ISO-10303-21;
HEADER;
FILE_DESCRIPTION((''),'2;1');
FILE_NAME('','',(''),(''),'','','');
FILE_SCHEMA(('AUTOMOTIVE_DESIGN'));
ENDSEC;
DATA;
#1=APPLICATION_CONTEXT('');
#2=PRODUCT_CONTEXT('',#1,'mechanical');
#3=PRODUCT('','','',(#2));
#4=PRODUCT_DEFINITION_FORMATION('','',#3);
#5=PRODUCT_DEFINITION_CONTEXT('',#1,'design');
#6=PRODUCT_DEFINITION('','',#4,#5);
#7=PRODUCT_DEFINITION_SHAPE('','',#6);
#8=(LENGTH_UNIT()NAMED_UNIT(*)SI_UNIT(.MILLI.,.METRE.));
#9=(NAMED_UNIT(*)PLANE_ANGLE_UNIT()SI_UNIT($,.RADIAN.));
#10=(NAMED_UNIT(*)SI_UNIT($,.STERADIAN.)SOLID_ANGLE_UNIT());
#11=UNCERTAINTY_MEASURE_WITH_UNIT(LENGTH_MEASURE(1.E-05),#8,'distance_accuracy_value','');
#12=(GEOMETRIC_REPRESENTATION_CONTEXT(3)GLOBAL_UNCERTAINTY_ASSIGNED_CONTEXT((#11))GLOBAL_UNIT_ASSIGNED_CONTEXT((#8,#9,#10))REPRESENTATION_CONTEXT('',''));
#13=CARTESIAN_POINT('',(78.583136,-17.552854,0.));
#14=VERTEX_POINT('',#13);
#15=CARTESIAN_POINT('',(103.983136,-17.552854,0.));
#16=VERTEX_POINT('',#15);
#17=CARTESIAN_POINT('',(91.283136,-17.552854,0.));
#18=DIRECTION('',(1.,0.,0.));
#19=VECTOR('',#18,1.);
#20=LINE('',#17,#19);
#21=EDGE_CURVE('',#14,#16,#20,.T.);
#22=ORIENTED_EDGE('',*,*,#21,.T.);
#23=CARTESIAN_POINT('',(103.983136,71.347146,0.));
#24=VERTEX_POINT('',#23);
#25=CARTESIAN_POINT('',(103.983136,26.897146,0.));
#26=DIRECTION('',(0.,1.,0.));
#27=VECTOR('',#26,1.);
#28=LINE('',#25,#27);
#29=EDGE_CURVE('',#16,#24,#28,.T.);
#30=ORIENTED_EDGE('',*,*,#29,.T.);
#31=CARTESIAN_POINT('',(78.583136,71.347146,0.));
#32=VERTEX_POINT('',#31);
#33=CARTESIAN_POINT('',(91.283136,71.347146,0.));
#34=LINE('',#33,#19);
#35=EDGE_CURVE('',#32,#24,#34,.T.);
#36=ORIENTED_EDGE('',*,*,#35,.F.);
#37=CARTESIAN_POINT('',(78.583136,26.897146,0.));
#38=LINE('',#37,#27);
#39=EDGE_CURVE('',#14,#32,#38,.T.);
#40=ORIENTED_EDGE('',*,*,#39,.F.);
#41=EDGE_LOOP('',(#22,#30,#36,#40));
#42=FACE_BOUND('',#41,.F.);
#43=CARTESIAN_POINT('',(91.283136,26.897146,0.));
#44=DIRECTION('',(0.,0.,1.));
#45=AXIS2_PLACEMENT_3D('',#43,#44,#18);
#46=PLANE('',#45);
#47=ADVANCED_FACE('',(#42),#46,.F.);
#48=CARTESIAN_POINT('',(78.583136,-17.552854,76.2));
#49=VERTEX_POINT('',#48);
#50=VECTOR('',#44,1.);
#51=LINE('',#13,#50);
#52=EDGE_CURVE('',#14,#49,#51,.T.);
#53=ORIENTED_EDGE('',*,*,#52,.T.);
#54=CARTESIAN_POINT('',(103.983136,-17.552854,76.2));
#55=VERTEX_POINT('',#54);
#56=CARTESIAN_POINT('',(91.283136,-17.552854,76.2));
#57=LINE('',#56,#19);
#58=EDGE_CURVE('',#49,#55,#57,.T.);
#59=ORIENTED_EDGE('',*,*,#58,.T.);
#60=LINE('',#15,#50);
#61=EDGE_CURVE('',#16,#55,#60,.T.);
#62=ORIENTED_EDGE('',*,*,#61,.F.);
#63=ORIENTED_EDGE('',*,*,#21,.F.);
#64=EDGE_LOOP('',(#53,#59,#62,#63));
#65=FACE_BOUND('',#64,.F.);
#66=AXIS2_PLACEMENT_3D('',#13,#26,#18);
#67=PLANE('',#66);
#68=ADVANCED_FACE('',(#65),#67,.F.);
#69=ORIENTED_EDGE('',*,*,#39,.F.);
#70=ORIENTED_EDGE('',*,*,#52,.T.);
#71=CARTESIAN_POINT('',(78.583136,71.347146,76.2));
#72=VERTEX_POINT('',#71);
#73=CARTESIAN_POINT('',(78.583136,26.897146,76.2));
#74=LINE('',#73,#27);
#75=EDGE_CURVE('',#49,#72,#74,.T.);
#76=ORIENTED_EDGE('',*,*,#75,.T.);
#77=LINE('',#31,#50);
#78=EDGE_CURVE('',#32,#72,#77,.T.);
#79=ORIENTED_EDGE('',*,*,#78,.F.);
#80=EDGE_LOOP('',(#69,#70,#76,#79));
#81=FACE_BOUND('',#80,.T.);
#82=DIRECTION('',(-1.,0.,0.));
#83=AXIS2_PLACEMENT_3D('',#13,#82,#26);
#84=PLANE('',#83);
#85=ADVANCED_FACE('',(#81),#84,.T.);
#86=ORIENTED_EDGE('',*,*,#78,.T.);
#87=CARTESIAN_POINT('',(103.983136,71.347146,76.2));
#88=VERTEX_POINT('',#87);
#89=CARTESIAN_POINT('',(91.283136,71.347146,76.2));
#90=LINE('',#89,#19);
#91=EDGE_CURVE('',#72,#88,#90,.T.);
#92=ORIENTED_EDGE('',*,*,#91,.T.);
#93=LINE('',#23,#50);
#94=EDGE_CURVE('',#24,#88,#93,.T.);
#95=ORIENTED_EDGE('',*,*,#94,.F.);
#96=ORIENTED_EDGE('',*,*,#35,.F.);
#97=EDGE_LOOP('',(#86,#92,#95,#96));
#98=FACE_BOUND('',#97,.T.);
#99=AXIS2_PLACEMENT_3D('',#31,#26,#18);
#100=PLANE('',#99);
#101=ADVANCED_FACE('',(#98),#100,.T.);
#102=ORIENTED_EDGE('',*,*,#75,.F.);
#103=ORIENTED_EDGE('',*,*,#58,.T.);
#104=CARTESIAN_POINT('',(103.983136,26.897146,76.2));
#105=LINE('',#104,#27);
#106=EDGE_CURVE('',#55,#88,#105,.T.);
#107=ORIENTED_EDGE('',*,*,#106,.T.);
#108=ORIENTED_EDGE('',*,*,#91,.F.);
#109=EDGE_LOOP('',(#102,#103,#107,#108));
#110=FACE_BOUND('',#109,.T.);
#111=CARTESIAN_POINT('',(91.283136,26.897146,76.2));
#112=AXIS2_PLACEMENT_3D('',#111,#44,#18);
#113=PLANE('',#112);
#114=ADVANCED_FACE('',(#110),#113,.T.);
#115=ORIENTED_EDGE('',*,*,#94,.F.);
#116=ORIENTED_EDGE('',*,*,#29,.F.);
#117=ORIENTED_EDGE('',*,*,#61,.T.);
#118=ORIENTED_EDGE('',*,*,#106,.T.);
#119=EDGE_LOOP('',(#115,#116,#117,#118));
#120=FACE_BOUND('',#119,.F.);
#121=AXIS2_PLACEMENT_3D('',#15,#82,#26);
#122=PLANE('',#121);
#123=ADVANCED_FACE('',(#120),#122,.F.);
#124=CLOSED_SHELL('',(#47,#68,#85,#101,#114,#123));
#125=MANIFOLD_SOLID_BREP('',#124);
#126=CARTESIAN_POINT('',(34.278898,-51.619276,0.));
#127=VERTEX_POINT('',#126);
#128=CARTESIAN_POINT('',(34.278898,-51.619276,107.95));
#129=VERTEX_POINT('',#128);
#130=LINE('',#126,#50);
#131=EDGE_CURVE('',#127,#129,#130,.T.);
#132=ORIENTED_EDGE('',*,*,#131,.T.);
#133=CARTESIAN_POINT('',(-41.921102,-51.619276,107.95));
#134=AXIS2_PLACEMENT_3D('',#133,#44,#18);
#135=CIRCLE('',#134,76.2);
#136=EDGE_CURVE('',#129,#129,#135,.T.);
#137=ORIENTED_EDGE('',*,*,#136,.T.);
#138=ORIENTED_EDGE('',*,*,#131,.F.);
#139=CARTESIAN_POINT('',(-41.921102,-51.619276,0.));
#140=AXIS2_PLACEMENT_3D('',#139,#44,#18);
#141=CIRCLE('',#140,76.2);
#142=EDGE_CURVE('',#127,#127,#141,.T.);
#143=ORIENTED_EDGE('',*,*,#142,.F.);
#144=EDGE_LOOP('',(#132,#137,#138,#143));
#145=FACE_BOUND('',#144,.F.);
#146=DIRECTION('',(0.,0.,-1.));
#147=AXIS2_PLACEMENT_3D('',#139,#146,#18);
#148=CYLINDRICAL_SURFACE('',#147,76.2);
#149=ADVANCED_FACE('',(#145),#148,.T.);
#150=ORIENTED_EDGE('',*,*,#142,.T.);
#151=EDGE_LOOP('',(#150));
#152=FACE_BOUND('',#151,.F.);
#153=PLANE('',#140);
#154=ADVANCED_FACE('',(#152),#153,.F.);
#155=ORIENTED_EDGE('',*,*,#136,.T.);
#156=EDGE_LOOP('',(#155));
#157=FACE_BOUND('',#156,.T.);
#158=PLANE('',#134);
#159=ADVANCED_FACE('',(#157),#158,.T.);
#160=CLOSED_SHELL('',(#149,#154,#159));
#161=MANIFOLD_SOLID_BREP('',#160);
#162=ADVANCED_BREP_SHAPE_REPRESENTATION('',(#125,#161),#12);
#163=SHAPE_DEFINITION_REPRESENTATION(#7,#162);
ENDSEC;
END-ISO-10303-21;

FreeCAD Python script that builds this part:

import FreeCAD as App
import Part
import Sketcher
Q = App.Units.Quantity

doc = App.newDocument("Part")
body = doc.addObject("PartDesign::Body", "Body")

# Sketch on XY plane
sketch1 = doc.addObject("Sketcher::SketchObject", "Sketch")
body.addObject(sketch1)
sketch1.AttachmentSupport = (doc.XY_Plane, [""])
sketch1.MapMode = "FlatFace"
sketch1.addGeometry(Part.Circle(App.Vector(-41.921102, -51.619276, 0), App.Vector(0, 0, 1), 76.2), False)
sketch1.addConstraint([
    Sketcher.Constraint("Diameter", 0, Q("6 in")),
    Sketcher.Constraint("DistanceX", 0, 3, -1, 1, 41.921102),
    Sketcher.Constraint("DistanceY", 0, 3, -1, 1, 51.619276),
])
pad1 = doc.addObject("PartDesign::Pad", "Pad")
body.addObject(pad1)
pad1.Profile = sketch1
pad1.Length = Q("4.25 in")
body2 = doc.addObject("PartDesign::Body", "Body001")

# Sketch on XY plane
sketch2 = doc.addObject("Sketcher::SketchObject", "Sketch001")
body2.addObject(sketch2)
sketch2.AttachmentSupport = (doc.getObject("XY_Plane001"), [""])
sketch2.MapMode = "FlatFace"
sketch2.addGeometry([
    Part.LineSegment(App.Vector(78.583136, 71.347146, 0), App.Vector(78.583136, -17.552854, 0)),
    Part.LineSegment(App.Vector(78.583136, -17.552854, 0), App.Vector(103.983136, -17.552854, 0)),
    Part.LineSegment(App.Vector(103.983136, -17.552854, 0), App.Vector(103.983136, 71.347146, 0)),
    Part.LineSegment(App.Vector(103.983136, 71.347146, 0), App.Vector(78.583136, 71.347146, 0)),
], False)
sketch2.addConstraint([
    Sketcher.Constraint("Coincident", 0, 2, 1, 1),
    Sketcher.Constraint("Coincident", 1, 2, 2, 1),
    Sketcher.Constraint("Coincident", 2, 2, 3, 1),
    Sketcher.Constraint("Coincident", 3, 2, 0, 1),
    Sketcher.Constraint("Vertical", 0),
    Sketcher.Constraint("Horizontal", 1),
    Sketcher.Constraint("Vertical", 2),
    Sketcher.Constraint("Horizontal", 3),
    Sketcher.Constraint("DistanceX", 1, 1, 1, 2, Q("1 in")),
    Sketcher.Constraint("DistanceY", 0, 2, 0, 1, Q("3.5 in")),
    Sketcher.Constraint("DistanceX", -1, 1, 0, 2, 78.583136),
    Sketcher.Constraint("DistanceY", 0, 2, -1, 1, 17.552854),
])
pad2 = doc.addObject("PartDesign::Pad", "Pad001")
body2.addObject(pad2)
pad2.Profile = sketch2
pad2.Length = Q("3 in")

doc.recompute()
